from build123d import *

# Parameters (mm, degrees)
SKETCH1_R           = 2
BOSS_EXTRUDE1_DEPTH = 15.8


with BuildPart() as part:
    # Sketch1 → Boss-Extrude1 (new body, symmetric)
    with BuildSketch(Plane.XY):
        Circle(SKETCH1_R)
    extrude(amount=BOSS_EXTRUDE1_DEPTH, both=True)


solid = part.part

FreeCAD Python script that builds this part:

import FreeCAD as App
import Part
import Sketcher

V = App.Vector

doc = App.newDocument("Part")
body = doc.addObject("PartDesign::Body", "Body")

# Sketch on XY plane
sketch1 = body.newObject("Sketcher::SketchObject", "Sketch")
sketch1.AttachmentSupport = (doc.getObject("XY_Plane"), [""])
sketch1.MapMode = "FlatFace"
sketch1.addGeometry(Part.Circle(V(0, 0, 0), V(0, 0, 1), 2), False)
sketch1.addConstraint([
    Sketcher.Constraint("Coincident", 0, 3, -1, 1),
    Sketcher.Constraint("Diameter", 0, 4.0),
])
pad1 = body.newObject("PartDesign::Pad", "Pad")
pad1.Profile = sketch1
pad1.Length = 31.6
pad1.Midplane = True

doc.recompute()
